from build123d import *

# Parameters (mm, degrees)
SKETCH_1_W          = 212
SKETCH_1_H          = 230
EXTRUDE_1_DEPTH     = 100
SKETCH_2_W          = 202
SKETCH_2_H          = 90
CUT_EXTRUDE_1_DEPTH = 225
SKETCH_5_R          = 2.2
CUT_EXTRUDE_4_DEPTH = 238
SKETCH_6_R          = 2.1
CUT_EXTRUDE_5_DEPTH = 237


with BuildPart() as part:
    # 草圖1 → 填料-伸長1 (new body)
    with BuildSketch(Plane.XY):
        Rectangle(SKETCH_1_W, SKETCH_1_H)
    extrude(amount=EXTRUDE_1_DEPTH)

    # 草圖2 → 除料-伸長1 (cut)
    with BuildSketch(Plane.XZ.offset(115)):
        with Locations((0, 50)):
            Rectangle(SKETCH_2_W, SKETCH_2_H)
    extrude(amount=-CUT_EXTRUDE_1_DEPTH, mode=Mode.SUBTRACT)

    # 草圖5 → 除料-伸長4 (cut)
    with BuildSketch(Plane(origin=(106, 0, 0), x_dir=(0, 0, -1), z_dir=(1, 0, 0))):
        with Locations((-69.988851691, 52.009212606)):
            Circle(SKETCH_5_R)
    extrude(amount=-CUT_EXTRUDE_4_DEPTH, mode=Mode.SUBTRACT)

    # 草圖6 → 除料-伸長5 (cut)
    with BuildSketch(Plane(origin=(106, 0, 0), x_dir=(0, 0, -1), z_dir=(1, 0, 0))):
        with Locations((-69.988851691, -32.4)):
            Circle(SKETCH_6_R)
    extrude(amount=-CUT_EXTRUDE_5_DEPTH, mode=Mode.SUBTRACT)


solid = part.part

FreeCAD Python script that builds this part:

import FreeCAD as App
import Part
import Sketcher
from FreeCAD import Vector
Q = App.Units.Quantity

doc = App.newDocument("Part")
body = doc.addObject("PartDesign::Body", "Body")

sketch1 = doc.addObject("Sketcher::SketchObject", "Sketch")
body.addObject(sketch1)
sketch1.AttachmentSupport = (doc.XY_Plane, [""])
sketch1.MapMode = "FlatFace"
sketch1.addGeometry([
    Part.LineSegment(Vector(-106, 115, 0), Vector(-106, -115, 0)),
    Part.LineSegment(Vector(-106, -115, 0), Vector(106, -115, 0)),
    Part.LineSegment(Vector(106, -115, 0), Vector(106, 115, 0)),
    Part.LineSegment(Vector(106, 115, 0), Vector(-106, 115, 0)),
], False)
sketch1.addConstraint([
    Sketcher.Constraint("Coincident", 0, 2, 1, 1),
    Sketcher.Constraint("Coincident", 1, 2, 2, 1),
    Sketcher.Constraint("Coincident", 2, 2, 3, 1),
    Sketcher.Constraint("Coincident", 3, 2, 0, 1),
    Sketcher.Constraint("Vertical", 0),
    Sketcher.Constraint("Horizontal", 1),
    Sketcher.Constraint("Vertical", 2),
    Sketcher.Constraint("Horizontal", 3),
    Sketcher.Constraint("Symmetric", 0, 2, 2, 2, -1, 1),
    Sketcher.Constraint("DistanceX", 1, 1, 1, 2, Q("212 mm")),
    Sketcher.Constraint("DistanceY", 0, 2, 0, 1, Q("230 mm")),
])
pad1 = doc.addObject("PartDesign::Pad", "Pad")
body.addObject(pad1)
pad1.Profile = sketch1
pad1.Length = 100

sketch2 = doc.addObject("Sketcher::SketchObject", "Sketch001")
body.addObject(sketch2)
sketch2.AttachmentSupport = (doc.XZ_Plane, [""])
sketch2.MapMode = "FlatFace"
sketch2.AttachmentOffset = App.Placement(Vector(0, 0, 115), App.Rotation())
sketch2.addGeometry([
    Part.LineSegment(Vector(-101, 95, 0), Vector(-101, 5, 0)),
    Part.LineSegment(Vector(-101, 5, 0), Vector(101, 5, 0)),
    Part.LineSegment(Vector(101, 5, 0), Vector(101, 95, 0)),
    Part.LineSegment(Vector(101, 95, 0), Vector(-101, 95, 0)),
], False)
sketch2.addConstraint([
    Sketcher.Constraint("Coincident", 0, 2, 1, 1),
    Sketcher.Constraint("Coincident", 1, 2, 2, 1),
    Sketcher.Constraint("Coincident", 2, 2, 3, 1),
    Sketcher.Constraint("Coincident", 3, 2, 0, 1),
    Sketcher.Constraint("Vertical", 0),
    Sketcher.Constraint("Horizontal", 1),
    Sketcher.Constraint("Vertical", 2),
    Sketcher.Constraint("Horizontal", 3),
    Sketcher.Constraint("DistanceX", 1, 1, 1, 2, Q("202 mm")),
    Sketcher.Constraint("DistanceY", 0, 2, 0, 1, Q("90 mm")),
    Sketcher.Constraint("DistanceX", 0, 2, -1, 1, Q("101 mm")),
    Sketcher.Constraint("DistanceY", -1, 1, 0, 2, Q("5 mm")),
])
pocket1 = doc.addObject("PartDesign::Pocket", "Pocket")
body.addObject(pocket1)
pocket1.Profile = sketch2
pocket1.Length = 225

sketch3 = doc.addObject("Sketcher::SketchObject", "Sketch002")
body.addObject(sketch3)
sketch3.AttachmentSupport = (doc.YZ_Plane, [""])
sketch3.MapMode = "FlatFace"
sketch3.AttachmentOffset = App.Placement(Vector(0, 0, 106), App.Rotation())
sketch3.addGeometry(Part.Circle(Vector(52.009213, 69.988852, 0), Vector(0, 0, 1), 2.2), False)
sketch3.addConstraint([
    Sketcher.Constraint("Diameter", 0, Q("4.4 mm")),
    Sketcher.Constraint("DistanceY", -1, 1, 0, 3, Q("69.988852 mm")),
    Sketcher.Constraint("DistanceX", -1, 1, 0, 3, Q("52.009213 mm")),
])
pocket2 = doc.addObject("PartDesign::Pocket", "Pocket001")
body.addObject(pocket2)
pocket2.Profile = sketch3
pocket2.Length = 238

sketch4 = doc.addObject("Sketcher::SketchObject", "Sketch003")
body.addObject(sketch4)
sketch4.AttachmentSupport = (doc.YZ_Plane, [""])
sketch4.MapMode = "FlatFace"
sketch4.AttachmentOffset = App.Placement(Vector(0, 0, 106), App.Rotation())
sketch4.addGeometry(Part.Circle(Vector(-32.4, 69.988852, 0), Vector(0, 0, 1), 2.1), False)
sketch4.addConstraint([
    Sketcher.Constraint("Diameter", 0, Q("4.2 mm")),
    Sketcher.Constraint("DistanceX", 0, 3, -1, 1, Q("32.4 mm")),
    Sketcher.Constraint("DistanceY", -1, 1, 0, 3, Q("69.988852 mm")),
])
pocket3 = doc.addObject("PartDesign::Pocket", "Pocket002")
body.addObject(pocket3)
pocket3.Profile = sketch4
pocket3.Length = 237

doc.recompute()
